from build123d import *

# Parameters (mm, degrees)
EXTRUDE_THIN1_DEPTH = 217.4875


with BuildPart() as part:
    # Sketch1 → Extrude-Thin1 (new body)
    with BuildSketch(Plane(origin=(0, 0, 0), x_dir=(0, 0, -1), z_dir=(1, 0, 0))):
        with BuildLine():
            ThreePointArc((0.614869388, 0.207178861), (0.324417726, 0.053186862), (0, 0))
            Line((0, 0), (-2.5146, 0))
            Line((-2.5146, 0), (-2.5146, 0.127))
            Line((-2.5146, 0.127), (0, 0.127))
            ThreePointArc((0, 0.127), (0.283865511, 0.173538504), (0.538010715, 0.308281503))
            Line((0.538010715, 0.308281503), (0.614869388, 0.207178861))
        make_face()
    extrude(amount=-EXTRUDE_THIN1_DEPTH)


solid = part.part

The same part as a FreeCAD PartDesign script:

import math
import FreeCAD as App
import Part
import Sketcher

V = App.Vector
Q = App.Units.Quantity

doc = App.newDocument("Part")
body = doc.addObject("PartDesign::Body", "Body")

sketch1 = doc.addObject("Sketcher::SketchObject", "Sketch")
body.addObject(sketch1)
sketch1.AttachmentSupport = (doc.YZ_Plane, [""])
sketch1.MapMode = "FlatFace"
sketch1.addGeometry(Part.ArcOfCircle(Part.Circle(V(1.02, 0, 0), V(0, 0, 1), 1.02), math.radians(180), math.radians(217)), False)
sketch1.addGeometry(Part.LineSegment(V(0.21, -0.61, 0), V(0.31, -0.54, 0)), False)
sketch1.addGeometry(Part.ArcOfCircle(Part.Circle(V(1.02, 0, 0), V(0, 0, 1), 0.89), math.radians(180), math.radians(217)), False)
sketch1.addGeometry(Part.LineSegment(V(0.13, 0, 0), V(0.13, 2.51, 0)), False)
sketch1.addGeometry(Part.LineSegment(V(0.13, 2.51, 0), V(0, 2.51, 0)), False)
sketch1.addGeometry(Part.LineSegment(V(0, 2.51, 0), V(0, 0, 0)), False)
sketch1.addConstraint(Sketcher.Constraint("Coincident", 0, 2, 1, 1))
sketch1.addConstraint(Sketcher.Constraint("Coincident", 1, 2, 2, 2))
sketch1.addConstraint(Sketcher.Constraint("Tangent", 2, 1, 3, 1))
sketch1.addConstraint(Sketcher.Constraint("Coincident", 3, 2, 4, 1))
sketch1.addConstraint(Sketcher.Constraint("Coincident", 4, 2, 5, 1))
sketch1.addConstraint(Sketcher.Constraint("Tangent", 5, 2, 0, 1))
sketch1.addConstraint(Sketcher.Constraint("Vertical", 3))
sketch1.addConstraint(Sketcher.Constraint("Horizontal", 4))
sketch1.addConstraint(Sketcher.Constraint("Vertical", 5))
sketch1.addConstraint(Sketcher.Constraint("Coincident", 5, 2, -1, 1))
sketch1.addConstraint(Sketcher.Constraint("Coincident", 2, 3, 0, 3))
sketch1.addConstraint(Sketcher.Constraint("Radius", 0, Q("0.04 in")))
sketch1.addConstraint(Sketcher.Constraint("Radius", 2, Q("0.035 in")))
sketch1.addConstraint(Sketcher.Constraint("DistanceY", 3, 1, 3, 2, Q("0.099 in")))
sketch1.addConstraint(Sketcher.Constraint("DistanceX", -1, 1, 0, 2, 0.207179))
sketch1.addConstraint(Sketcher.Constraint("DistanceX", -1, 1, 1, 2, 0.308282))
pad1 = doc.addObject("PartDesign::Pad", "Pad")
body.addObject(pad1)
pad1.Profile = sketch1
pad1.Length = Q("8.5625 in")
pad1.Reversed = True

doc.recompute()
